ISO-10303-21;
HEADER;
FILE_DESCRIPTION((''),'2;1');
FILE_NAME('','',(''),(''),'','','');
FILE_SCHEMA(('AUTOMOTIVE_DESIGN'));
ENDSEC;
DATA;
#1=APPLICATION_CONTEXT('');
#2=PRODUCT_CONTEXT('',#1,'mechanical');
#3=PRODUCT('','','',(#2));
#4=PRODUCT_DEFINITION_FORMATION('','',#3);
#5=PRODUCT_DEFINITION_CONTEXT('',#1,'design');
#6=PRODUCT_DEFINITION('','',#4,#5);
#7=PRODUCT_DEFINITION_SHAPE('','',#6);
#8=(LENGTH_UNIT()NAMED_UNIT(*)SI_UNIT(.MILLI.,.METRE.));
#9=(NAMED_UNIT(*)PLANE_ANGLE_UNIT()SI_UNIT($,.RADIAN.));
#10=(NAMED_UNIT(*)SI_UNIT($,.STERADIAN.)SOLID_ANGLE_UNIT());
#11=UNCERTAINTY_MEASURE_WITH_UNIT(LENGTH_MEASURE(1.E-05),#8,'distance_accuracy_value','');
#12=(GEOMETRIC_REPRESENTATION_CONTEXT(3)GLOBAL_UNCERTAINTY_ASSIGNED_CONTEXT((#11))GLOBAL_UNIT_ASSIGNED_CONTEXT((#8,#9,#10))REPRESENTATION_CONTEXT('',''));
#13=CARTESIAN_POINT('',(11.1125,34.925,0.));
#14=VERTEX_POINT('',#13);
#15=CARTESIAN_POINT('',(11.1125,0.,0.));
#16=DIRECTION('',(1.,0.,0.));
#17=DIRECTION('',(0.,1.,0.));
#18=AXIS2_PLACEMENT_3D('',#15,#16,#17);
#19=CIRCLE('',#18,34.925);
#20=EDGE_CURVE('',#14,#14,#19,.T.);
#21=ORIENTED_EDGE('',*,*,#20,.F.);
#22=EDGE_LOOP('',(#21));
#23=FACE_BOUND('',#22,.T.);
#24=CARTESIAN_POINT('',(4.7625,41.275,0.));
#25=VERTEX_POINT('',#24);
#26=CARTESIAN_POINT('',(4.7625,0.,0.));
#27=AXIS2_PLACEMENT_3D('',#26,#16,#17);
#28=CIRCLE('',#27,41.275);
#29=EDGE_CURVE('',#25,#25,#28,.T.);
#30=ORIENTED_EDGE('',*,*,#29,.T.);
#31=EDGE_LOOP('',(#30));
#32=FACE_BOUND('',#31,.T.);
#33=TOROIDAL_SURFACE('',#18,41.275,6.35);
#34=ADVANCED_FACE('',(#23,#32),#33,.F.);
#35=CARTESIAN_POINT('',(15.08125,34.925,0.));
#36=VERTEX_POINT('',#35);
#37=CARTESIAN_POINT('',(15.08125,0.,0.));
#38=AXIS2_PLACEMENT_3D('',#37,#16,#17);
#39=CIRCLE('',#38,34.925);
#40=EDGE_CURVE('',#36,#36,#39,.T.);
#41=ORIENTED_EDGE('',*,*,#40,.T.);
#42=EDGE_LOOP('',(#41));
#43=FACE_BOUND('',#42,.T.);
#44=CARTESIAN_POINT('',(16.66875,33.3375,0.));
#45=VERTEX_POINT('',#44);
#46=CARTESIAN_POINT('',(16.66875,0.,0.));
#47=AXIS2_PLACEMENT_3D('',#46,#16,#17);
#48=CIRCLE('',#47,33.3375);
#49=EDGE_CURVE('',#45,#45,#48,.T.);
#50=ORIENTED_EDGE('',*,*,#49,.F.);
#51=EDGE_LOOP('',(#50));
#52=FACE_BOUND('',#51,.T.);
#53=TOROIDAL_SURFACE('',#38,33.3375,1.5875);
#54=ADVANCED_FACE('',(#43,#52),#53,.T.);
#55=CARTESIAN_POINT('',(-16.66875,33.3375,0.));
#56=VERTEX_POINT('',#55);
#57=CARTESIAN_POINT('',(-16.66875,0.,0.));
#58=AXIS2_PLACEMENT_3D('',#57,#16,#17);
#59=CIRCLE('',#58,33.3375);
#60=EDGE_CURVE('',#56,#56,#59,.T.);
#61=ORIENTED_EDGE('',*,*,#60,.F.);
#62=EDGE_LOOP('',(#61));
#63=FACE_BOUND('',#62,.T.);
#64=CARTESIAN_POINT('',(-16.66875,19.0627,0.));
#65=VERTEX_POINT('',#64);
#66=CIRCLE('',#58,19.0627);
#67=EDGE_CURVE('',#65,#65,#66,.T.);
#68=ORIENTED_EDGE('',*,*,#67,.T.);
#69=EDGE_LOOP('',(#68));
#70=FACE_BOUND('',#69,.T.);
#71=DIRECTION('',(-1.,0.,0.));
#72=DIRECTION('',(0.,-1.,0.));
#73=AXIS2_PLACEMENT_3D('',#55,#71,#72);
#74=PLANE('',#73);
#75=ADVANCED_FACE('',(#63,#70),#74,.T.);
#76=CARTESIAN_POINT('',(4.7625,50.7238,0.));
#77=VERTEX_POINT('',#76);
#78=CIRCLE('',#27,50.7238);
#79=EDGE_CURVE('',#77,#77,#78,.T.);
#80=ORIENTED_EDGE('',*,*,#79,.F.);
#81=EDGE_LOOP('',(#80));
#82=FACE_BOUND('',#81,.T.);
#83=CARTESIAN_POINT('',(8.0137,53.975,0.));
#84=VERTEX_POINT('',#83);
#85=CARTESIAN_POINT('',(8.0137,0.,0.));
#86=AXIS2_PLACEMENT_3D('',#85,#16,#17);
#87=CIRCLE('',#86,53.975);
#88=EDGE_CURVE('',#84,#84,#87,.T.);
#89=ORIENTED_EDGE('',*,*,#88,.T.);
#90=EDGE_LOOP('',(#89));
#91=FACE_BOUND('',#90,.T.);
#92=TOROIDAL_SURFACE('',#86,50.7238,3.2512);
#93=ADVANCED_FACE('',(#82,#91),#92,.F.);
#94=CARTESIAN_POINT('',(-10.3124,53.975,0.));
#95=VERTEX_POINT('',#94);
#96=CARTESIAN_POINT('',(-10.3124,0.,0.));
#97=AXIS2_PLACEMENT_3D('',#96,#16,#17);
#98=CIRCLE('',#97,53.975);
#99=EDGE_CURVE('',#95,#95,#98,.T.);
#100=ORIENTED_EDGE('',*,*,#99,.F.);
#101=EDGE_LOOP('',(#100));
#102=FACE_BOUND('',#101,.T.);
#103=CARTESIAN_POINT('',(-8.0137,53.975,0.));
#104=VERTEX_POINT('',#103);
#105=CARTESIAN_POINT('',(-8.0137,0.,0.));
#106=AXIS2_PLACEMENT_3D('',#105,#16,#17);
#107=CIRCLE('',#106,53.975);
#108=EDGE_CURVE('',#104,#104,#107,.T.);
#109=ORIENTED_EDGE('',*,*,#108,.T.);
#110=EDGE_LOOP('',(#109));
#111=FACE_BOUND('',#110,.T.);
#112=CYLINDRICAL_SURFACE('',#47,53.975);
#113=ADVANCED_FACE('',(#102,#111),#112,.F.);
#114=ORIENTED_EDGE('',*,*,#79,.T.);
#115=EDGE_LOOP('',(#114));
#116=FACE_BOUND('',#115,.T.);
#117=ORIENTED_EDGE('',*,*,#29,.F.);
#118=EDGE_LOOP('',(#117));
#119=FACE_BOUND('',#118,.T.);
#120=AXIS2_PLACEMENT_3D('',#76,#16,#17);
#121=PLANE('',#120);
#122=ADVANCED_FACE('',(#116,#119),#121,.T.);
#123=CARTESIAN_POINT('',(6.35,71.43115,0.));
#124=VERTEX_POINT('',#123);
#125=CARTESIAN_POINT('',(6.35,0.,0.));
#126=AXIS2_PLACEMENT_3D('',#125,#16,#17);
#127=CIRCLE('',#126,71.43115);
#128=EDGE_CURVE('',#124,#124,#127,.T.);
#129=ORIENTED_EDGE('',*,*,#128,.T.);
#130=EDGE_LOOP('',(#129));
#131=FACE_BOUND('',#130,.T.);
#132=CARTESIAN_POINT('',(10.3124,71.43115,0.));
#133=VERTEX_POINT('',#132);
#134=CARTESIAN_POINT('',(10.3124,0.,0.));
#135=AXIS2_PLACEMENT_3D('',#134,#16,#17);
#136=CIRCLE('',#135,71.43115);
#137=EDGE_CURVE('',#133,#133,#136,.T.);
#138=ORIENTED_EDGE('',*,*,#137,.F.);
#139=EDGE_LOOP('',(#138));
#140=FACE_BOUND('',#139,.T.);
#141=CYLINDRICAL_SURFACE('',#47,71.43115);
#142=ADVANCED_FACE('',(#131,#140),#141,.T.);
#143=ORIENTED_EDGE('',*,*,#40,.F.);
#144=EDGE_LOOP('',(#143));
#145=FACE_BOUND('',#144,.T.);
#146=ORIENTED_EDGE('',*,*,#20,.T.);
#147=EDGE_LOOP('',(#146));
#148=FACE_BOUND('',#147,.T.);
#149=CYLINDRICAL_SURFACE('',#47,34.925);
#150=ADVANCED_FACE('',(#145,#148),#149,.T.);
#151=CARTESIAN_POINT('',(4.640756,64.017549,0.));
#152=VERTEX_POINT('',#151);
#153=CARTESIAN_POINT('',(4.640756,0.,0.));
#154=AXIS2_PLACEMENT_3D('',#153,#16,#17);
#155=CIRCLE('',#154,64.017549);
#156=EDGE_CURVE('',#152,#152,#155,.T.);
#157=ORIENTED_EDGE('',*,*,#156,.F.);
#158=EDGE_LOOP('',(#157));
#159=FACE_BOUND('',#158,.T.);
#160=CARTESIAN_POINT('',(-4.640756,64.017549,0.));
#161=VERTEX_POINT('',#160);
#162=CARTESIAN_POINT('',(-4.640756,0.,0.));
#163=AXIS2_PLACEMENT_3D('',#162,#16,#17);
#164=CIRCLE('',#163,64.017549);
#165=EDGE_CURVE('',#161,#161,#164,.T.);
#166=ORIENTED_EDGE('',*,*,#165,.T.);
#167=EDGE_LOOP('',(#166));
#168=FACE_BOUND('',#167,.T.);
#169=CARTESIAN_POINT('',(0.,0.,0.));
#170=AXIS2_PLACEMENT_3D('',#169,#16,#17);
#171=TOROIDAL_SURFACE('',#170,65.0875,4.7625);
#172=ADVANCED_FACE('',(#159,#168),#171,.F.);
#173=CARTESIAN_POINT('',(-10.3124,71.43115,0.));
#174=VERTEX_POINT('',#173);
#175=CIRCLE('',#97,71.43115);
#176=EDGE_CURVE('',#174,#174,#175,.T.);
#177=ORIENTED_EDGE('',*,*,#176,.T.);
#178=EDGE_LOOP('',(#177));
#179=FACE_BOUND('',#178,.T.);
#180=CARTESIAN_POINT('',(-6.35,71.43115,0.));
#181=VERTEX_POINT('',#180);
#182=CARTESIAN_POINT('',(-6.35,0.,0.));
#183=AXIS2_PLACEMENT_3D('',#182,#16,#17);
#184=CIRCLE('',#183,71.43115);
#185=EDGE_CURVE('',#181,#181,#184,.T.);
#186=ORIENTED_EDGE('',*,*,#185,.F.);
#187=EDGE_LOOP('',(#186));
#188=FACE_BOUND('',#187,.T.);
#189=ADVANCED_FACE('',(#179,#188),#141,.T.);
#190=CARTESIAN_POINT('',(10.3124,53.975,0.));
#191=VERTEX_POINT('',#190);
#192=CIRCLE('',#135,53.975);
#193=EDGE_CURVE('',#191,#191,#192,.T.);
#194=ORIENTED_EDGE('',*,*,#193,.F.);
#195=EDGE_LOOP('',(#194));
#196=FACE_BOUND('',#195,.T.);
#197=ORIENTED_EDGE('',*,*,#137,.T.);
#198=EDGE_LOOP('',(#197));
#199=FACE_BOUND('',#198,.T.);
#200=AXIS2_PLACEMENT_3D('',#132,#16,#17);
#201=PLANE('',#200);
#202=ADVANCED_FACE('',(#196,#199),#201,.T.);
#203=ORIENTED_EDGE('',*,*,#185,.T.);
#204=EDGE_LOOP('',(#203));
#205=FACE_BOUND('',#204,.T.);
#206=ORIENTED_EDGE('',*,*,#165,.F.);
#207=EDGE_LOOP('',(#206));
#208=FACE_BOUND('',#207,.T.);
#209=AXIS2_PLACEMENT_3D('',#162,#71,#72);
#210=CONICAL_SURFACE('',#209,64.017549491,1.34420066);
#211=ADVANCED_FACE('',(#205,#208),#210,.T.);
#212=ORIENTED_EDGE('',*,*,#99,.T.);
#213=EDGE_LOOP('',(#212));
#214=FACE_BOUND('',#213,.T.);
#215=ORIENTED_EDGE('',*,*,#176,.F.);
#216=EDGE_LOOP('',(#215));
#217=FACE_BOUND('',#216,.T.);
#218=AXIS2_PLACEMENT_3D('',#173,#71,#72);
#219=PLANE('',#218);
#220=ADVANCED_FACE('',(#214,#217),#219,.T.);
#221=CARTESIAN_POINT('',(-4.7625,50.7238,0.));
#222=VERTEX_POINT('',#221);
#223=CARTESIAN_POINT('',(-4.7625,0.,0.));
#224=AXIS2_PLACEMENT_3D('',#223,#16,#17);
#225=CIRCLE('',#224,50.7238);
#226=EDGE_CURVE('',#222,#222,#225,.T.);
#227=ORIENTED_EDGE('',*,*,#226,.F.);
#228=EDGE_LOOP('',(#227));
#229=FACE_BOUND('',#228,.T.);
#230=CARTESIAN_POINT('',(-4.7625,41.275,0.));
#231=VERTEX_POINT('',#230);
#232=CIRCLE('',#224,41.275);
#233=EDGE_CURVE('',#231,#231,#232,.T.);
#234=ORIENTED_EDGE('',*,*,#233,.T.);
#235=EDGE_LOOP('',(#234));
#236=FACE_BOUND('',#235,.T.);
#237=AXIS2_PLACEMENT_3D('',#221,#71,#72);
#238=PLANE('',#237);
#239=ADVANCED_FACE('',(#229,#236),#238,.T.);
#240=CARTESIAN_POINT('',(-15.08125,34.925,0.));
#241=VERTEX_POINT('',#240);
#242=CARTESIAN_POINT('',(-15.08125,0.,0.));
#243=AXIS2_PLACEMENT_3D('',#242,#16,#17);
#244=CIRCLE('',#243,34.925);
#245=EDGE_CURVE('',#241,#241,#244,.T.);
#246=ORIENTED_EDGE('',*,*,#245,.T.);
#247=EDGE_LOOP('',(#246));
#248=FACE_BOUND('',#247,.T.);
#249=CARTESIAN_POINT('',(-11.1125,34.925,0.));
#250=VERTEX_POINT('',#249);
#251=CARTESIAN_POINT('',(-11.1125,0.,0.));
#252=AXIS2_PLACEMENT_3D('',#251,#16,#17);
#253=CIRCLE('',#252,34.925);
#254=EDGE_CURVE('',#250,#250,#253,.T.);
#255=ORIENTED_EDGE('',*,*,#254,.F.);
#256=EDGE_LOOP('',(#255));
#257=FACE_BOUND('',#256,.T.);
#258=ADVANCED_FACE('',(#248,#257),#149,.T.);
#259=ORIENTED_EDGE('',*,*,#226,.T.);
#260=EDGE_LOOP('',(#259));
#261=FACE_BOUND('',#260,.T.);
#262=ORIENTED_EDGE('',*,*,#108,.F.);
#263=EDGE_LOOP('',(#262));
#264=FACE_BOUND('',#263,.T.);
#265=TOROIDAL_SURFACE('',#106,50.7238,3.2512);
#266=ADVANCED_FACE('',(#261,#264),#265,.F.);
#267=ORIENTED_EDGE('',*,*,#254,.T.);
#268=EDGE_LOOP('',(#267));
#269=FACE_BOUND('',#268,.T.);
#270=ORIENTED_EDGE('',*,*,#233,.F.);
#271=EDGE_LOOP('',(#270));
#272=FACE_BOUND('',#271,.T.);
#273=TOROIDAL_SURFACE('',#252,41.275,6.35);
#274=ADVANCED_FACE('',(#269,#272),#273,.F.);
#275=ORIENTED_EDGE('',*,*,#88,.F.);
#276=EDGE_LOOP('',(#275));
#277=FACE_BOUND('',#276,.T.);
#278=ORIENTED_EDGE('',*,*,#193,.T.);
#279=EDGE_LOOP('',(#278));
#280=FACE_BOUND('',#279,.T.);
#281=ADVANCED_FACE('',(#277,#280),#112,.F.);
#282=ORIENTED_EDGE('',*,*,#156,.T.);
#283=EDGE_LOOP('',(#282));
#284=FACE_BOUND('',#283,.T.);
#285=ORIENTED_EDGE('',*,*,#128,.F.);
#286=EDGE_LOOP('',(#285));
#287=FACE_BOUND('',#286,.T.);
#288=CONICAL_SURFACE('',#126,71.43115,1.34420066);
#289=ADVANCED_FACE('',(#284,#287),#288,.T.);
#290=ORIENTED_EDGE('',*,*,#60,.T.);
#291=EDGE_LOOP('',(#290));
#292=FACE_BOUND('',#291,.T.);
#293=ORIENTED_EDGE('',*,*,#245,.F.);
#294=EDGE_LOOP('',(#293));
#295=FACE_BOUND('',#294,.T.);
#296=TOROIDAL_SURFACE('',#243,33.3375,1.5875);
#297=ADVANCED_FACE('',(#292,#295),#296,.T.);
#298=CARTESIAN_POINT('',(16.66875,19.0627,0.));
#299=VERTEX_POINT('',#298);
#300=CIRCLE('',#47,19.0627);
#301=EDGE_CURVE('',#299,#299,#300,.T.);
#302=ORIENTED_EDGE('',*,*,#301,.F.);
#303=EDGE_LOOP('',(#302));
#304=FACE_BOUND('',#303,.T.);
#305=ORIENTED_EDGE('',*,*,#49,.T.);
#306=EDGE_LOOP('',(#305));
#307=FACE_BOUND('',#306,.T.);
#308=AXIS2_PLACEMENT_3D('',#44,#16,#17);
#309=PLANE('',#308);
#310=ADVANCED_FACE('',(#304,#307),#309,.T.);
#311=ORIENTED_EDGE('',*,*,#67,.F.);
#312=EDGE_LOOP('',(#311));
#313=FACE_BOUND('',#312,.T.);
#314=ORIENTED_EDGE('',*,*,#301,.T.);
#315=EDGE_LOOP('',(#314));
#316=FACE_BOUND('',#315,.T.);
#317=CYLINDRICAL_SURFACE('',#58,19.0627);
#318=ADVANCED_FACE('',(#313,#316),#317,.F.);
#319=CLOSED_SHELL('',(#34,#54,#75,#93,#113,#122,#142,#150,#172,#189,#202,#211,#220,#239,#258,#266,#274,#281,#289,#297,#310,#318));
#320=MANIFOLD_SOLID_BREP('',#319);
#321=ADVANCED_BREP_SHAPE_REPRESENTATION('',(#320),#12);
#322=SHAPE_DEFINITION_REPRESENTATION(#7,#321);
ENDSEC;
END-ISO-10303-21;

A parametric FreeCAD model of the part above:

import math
import FreeCAD as App
import Part
import Sketcher
from FreeCAD import Vector
Q = App.Units.Quantity

doc = App.newDocument("Part")
body = doc.addObject("PartDesign::Body", "Body")

sketch1 = body.newObject("Sketcher::SketchObject", "Sketch")
sketch1.AttachmentSupport = (doc.getObject("XY_Plane"), [""])
sketch1.MapMode = "FlatFace"
sketch1.addGeometry(Part.LineSegment(Vector(-16.7, 0, 0), Vector(16.7, 0, 0)), False)
sketch1.addGeometry(Part.LineSegment(Vector(16.7, 0, 0), Vector(16.7, 33.3, 0)), False)
sketch1.addGeometry(Part.ArcOfCircle(Part.Circle(Vector(15.1, 33.3, 0), Vector(0, 0, 1), 1.6), math.radians(0), math.radians(90)), False)
sketch1.addGeometry(Part.LineSegment(Vector(15.1, 34.9, 0), Vector(11.1, 34.9, 0)), False)
sketch1.addGeometry(Part.ArcOfCircle(Part.Circle(Vector(11.1, 41.3, 0), Vector(0, 0, 1), 6.3), math.radians(180), math.radians(270)), False)
sketch1.addGeometry(Part.LineSegment(Vector(4.8, 41.3, 0), Vector(4.8, 50.7, 0)), False)
sketch1.addGeometry(Part.ArcOfCircle(Part.Circle(Vector(8, 50.7, 0), Vector(0, 0, 1), 3.3), math.radians(90), math.radians(180)), False)
sketch1.addGeometry(Part.LineSegment(Vector(8, 54, 0), Vector(10.3, 54, 0)), False)
sketch1.addGeometry(Part.LineSegment(Vector(10.3, 54, 0), Vector(10.3, 71.4, 0)), False)
sketch1.addGeometry(Part.LineSegment(Vector(10.3, 71.4, 0), Vector(6.3, 71.4, 0)), False)
sketch1.addGeometry(Part.LineSegment(Vector(6.3, 71.4, 0), Vector(4.6, 64, 0)), False)
sketch1.addGeometry(Part.ArcOfCircle(Part.Circle(Vector(0, 65.1, 0), Vector(0, 0, 1), 4.8), math.radians(-167), math.radians(-13)), False)
sketch1.addGeometry(Part.LineSegment(Vector(-4.6, 64, 0), Vector(-6.3, 71.4, 0)), False)
sketch1.addGeometry(Part.LineSegment(Vector(-6.3, 71.4, 0), Vector(-10.3, 71.4, 0)), False)
sketch1.addGeometry(Part.LineSegment(Vector(-10.3, 71.4, 0), Vector(-10.3, 54, 0)), False)
sketch1.addGeometry(Part.LineSegment(Vector(-10.3, 54, 0), Vector(-8, 54, 0)), False)
sketch1.addGeometry(Part.ArcOfCircle(Part.Circle(Vector(-8, 50.7, 0), Vector(0, 0, 1), 3.3), math.radians(0), math.radians(90)), False)
sketch1.addGeometry(Part.LineSegment(Vector(-4.8, 50.7, 0), Vector(-4.8, 41.3, 0)), False)
sketch1.addGeometry(Part.ArcOfCircle(Part.Circle(Vector(-11.1, 41.3, 0), Vector(0, 0, 1), 6.3), math.radians(-90), math.radians(0)), False)
sketch1.addGeometry(Part.LineSegment(Vector(-11.1, 34.9, 0), Vector(-15.1, 34.9, 0)), False)
sketch1.addGeometry(Part.ArcOfCircle(Part.Circle(Vector(-15.1, 33.3, 0), Vector(0, 0, 1), 1.6), math.radians(90), math.radians(180)), False)
sketch1.addGeometry(Part.LineSegment(Vector(-16.7, 33.3, 0), Vector(-16.7, 0, 0)), False)
sketch1.addConstraint(Sketcher.Constraint("Coincident", 0, 2, 1, 1))
sketch1.addConstraint(Sketcher.Constraint("Tangent", 1, 2, 2, 1))
sketch1.addConstraint(Sketcher.Constraint("Tangent", 2, 2, 3, 1))
sketch1.addConstraint(Sketcher.Constraint("Tangent", 3, 2, 4, 2))
sketch1.addConstraint(Sketcher.Constraint("Tangent", 4, 1, 5, 1))
sketch1.addConstraint(Sketcher.Constraint("Tangent", 5, 2, 6, 2))
sketch1.addConstraint(Sketcher.Constraint("Tangent", 6, 1, 7, 1))
sketch1.addConstraint(Sketcher.Constraint("Coincident", 7, 2, 8, 1))
sketch1.addConstraint(Sketcher.Constraint("Coincident", 8, 2, 9, 1))
sketch1.addConstraint(Sketcher.Constraint("Coincident", 9, 2, 10, 1))
sketch1.addConstraint(Sketcher.Constraint("Tangent", 10, 2, 11, 2))
sketch1.addConstraint(Sketcher.Constraint("Tangent", 11, 1, 12, 1))
sketch1.addConstraint(Sketcher.Constraint("Coincident", 12, 2, 13, 1))
sketch1.addConstraint(Sketcher.Constraint("Coincident", 13, 2, 14, 1))
sketch1.addConstraint(Sketcher.Constraint("Coincident", 14, 2, 15, 1))
sketch1.addConstraint(Sketcher.Constraint("Tangent", 15, 2, 16, 2))
sketch1.addConstraint(Sketcher.Constraint("Tangent", 16, 1, 17, 1))
sketch1.addConstraint(Sketcher.Constraint("Tangent", 17, 2, 18, 2))
sketch1.addConstraint(Sketcher.Constraint("Tangent", 18, 1, 19, 1))
sketch1.addConstraint(Sketcher.Constraint("Tangent", 19, 2, 20, 1))
sketch1.addConstraint(Sketcher.Constraint("Tangent", 20, 2, 21, 1))
sketch1.addConstraint(Sketcher.Constraint("Coincident", 21, 2, 0, 1))
sketch1.addConstraint(Sketcher.Constraint("Horizontal", 0))
sketch1.addConstraint(Sketcher.Constraint("Vertical", 1))
sketch1.addConstraint(Sketcher.Constraint("Horizontal", 3))
sketch1.addConstraint(Sketcher.Constraint("Vertical", 5))
sketch1.addConstraint(Sketcher.Constraint("Horizontal", 7))
sketch1.addConstraint(Sketcher.Constraint("Vertical", 8))
sketch1.addConstraint(Sketcher.Constraint("Horizontal", 9))
sketch1.addConstraint(Sketcher.Constraint("Horizontal", 13))
sketch1.addConstraint(Sketcher.Constraint("Vertical", 14))
sketch1.addConstraint(Sketcher.Constraint("Horizontal", 15))
sketch1.addConstraint(Sketcher.Constraint("Vertical", 17))
sketch1.addConstraint(Sketcher.Constraint("Horizontal", 19))
sketch1.addConstraint(Sketcher.Constraint("Vertical", 21))
sketch1.addConstraint(Sketcher.Constraint("Equal", 6, 16))
sketch1.addConstraint(Sketcher.Constraint("Equal", 4, 18))
sketch1.addConstraint(Sketcher.Constraint("Equal", 2, 20))
sketch1.addConstraint(Sketcher.Constraint("Symmetric", 0, 2, 21, 2, -1, 1))
sketch1.addConstraint(Sketcher.Constraint("Symmetric", 6, 3, 16, 3, -2))
sketch1.addConstraint(Sketcher.Constraint("Symmetric", 10, 2, 11, 1, -2))
sketch1.addConstraint(Sketcher.Constraint("Symmetric", 8, 2, 13, 2, -2))
sketch1.addConstraint(Sketcher.Constraint("Horizontal", 4, 3, 18, 3))
sketch1.addConstraint(Sketcher.Constraint("Equal", 0, 1))
sketch1.addConstraint(Sketcher.Constraint("Radius", 4, Q("0.25 in")))
sketch1.addConstraint(Sketcher.Constraint("Radius", 2, Q("0.0625 in")))
sketch1.addConstraint(Sketcher.Constraint("Radius", 6, Q("0.128 in")))
sketch1.addConstraint(Sketcher.Constraint("Radius", 11, Q("0.1875 in")))
sketch1.addConstraint(Sketcher.Constraint("DistanceY", 4, 3, 6, 1, Q("0.5 in")))
sketch1.addConstraint(Sketcher.Constraint("DistanceX", 12, 2, 9, 2, Q("0.5 in")))
sketch1.addConstraint(Sketcher.Constraint("DistanceX", 0, 1, 0, 2, Q("1.3125 in")))
sketch1.addConstraint(Sketcher.Constraint("DistanceX", 3, 2, 3, 1, Q("0.15625 in")))
sketch1.addConstraint(Sketcher.Constraint("DistanceX", 9, 2, 9, 1, Q("0.156 in")))
sketch1.addConstraint(Sketcher.Constraint("DistanceY", 2, 3, 11, 3, Q("1.25 in")))
sketch1.addConstraint(Sketcher.Constraint("DistanceY", 8, 1, 8, 2, 17.45615))
revolution = body.newObject("PartDesign::Revolution", "Revolution")
revolution.Profile = sketch1
revolution.ReferenceAxis = (sketch1, ["H_Axis"])
revolution.Angle = 360

sketch2 = body.newObject("Sketcher::SketchObject", "Sketch001")
sketch2.AttachmentSupport = (doc.getObject("YZ_Plane"), [""])
sketch2.MapMode = "FlatFace"
sketch2.AttachmentOffset = App.Placement(Vector(0, 0, 0.65625 * 25.4), App.Rotation())
sketch2.addGeometry(Part.Circle(Vector(0, 0, 0), Vector(0, 0, 1), 19), False)
sketch2.addConstraint(Sketcher.Constraint("Coincident", 0, 3, -1, 1))
sketch2.addConstraint(Sketcher.Constraint("Diameter", 0, Q("1.501 in")))
pocket1 = body.newObject("PartDesign::Pocket", "Pocket")
pocket1.Profile = sketch2
pocket1.Type = "ThroughAll"

doc.recompute()
